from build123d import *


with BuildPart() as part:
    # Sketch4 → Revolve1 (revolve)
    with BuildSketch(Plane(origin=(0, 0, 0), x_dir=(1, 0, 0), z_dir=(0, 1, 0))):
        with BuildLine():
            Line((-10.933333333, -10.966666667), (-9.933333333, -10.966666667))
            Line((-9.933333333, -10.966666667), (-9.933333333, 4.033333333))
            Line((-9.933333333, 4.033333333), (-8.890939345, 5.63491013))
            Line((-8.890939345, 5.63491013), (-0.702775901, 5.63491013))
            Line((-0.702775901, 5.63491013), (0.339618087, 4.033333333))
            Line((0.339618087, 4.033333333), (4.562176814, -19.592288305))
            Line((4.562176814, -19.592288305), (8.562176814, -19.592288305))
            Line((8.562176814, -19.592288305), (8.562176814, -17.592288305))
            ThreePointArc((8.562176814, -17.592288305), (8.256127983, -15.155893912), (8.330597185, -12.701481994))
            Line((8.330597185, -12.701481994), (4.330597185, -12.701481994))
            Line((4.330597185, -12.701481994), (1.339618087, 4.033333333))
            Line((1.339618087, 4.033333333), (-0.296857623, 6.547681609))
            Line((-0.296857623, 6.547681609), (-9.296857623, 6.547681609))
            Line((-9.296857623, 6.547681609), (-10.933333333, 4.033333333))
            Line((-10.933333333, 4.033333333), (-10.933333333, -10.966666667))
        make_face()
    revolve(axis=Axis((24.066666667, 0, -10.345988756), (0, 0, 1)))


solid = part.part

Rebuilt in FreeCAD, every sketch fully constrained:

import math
import FreeCAD as App
import Part
import Sketcher
from FreeCAD import Vector

doc = App.newDocument("Part")
body = doc.addObject("PartDesign::Body", "Body")

# Sketch on XZ plane
sketch1 = body.newObject("Sketcher::SketchObject", "Sketch")
sketch1.AttachmentSupport = (doc.getObject("XZ_Plane"), [""])
sketch1.MapMode = "FlatFace"
sketch1.addGeometry(Part.LineSegment(Vector(-10.933333, 10.966667, 0), Vector(-9.933333, 10.966667, 0)), False)
sketch1.addGeometry(Part.LineSegment(Vector(-9.933333, 10.966667, 0), Vector(-9.933333, -4.033333, 0)), False)
sketch1.addGeometry(Part.LineSegment(Vector(-9.933333, -4.033333, 0), Vector(-8.890939, -5.63491, 0)), False)
sketch1.addGeometry(Part.LineSegment(Vector(-8.890939, -5.63491, 0), Vector(-0.702776, -5.63491, 0)), False)
sketch1.addGeometry(Part.LineSegment(Vector(-0.702776, -5.63491, 0), Vector(0.339618, -4.033333, 0)), False)
sketch1.addGeometry(Part.LineSegment(Vector(0.339618, -4.033333, 0), Vector(4.562177, 19.592288, 0)), False)
sketch1.addGeometry(Part.LineSegment(Vector(4.562177, 19.592288, 0), Vector(8.562177, 19.592288, 0)), False)
sketch1.addGeometry(Part.LineSegment(Vector(8.562177, 19.592288, 0), Vector(8.562177, 17.592288, 0)), False)
sketch1.addGeometry(Part.ArcOfCircle(Part.Circle(Vector(24.066667, 14.407265, 0), Vector(0, 0, 1), 15.828253), math.radians(168.39146), math.radians(186.186681)), False)
sketch1.addGeometry(Part.LineSegment(Vector(8.330597, 12.701482, 0), Vector(4.330597, 12.701482, 0)), False)
sketch1.addGeometry(Part.LineSegment(Vector(4.330597, 12.701482, 0), Vector(1.339618, -4.033333, 0)), False)
sketch1.addGeometry(Part.LineSegment(Vector(1.339618, -4.033333, 0), Vector(-0.296858, -6.547682, 0)), False)
sketch1.addGeometry(Part.LineSegment(Vector(-0.296858, -6.547682, 0), Vector(-9.296858, -6.547682, 0)), False)
sketch1.addGeometry(Part.LineSegment(Vector(-9.296858, -6.547682, 0), Vector(-10.933333, -4.033333, 0)), False)
sketch1.addGeometry(Part.LineSegment(Vector(-10.933333, -4.033333, 0), Vector(-10.933333, 10.966667, 0)), False)
sketch1.addGeometry(Part.LineSegment(Vector(24.066667, -6.547682, 0), Vector(24.066667, 19.592288, 0)), True)  # axis
sketch1.addConstraint(Sketcher.Constraint("Coincident", 0, 2, 1, 1))
sketch1.addConstraint(Sketcher.Constraint("Coincident", 1, 2, 2, 1))
sketch1.addConstraint(Sketcher.Constraint("Coincident", 2, 2, 3, 1))
sketch1.addConstraint(Sketcher.Constraint("Coincident", 3, 2, 4, 1))
sketch1.addConstraint(Sketcher.Constraint("Coincident", 4, 2, 5, 1))
sketch1.addConstraint(Sketcher.Constraint("Coincident", 5, 2, 6, 1))
sketch1.addConstraint(Sketcher.Constraint("Coincident", 6, 2, 7, 1))
sketch1.addConstraint(Sketcher.Constraint("Coincident", 7, 2, 8, 1))
sketch1.addConstraint(Sketcher.Constraint("Coincident", 8, 2, 9, 1))
sketch1.addConstraint(Sketcher.Constraint("Coincident", 9, 2, 10, 1))
sketch1.addConstraint(Sketcher.Constraint("Coincident", 10, 2, 11, 1))
sketch1.addConstraint(Sketcher.Constraint("Coincident", 11, 2, 12, 1))
sketch1.addConstraint(Sketcher.Constraint("Coincident", 12, 2, 13, 1))
sketch1.addConstraint(Sketcher.Constraint("Coincident", 13, 2, 14, 1))
sketch1.addConstraint(Sketcher.Constraint("Coincident", 14, 2, 0, 1))
sketch1.addConstraint(Sketcher.Constraint("Horizontal", 0))
sketch1.addConstraint(Sketcher.Constraint("Vertical", 1))
sketch1.addConstraint(Sketcher.Constraint("Horizontal", 3))
sketch1.addConstraint(Sketcher.Constraint("Horizontal", 6))
sketch1.addConstraint(Sketcher.Constraint("Vertical", 7))
sketch1.addConstraint(Sketcher.Constraint("Horizontal", 9))
sketch1.addConstraint(Sketcher.Constraint("Horizontal", 12))
sketch1.addConstraint(Sketcher.Constraint("Vertical", 14))
sketch1.addConstraint(Sketcher.Constraint("Vertical", 15))
sketch1.addConstraint(Sketcher.Constraint("Parallel", 5, 10))
sketch1.addConstraint(Sketcher.Constraint("Parallel", 4, 11))
sketch1.addConstraint(Sketcher.Constraint("Parallel", 2, 13))
sketch1.addConstraint(Sketcher.Constraint("Horizontal", 1, 2, 4, 2))
sketch1.addConstraint(Sketcher.Constraint("Horizontal", 4, 2, 10, 2))
sketch1.addConstraint(Sketcher.Constraint("Horizontal", 10, 2, 13, 2))
sketch1.addConstraint(Sketcher.Constraint("Horizontal", 12, 2, 15, 1))
sketch1.addConstraint(Sketcher.Constraint("Horizontal", 6, 2, 15, 2))
sketch1.addConstraint(Sketcher.Constraint("Vertical", 8, 3, 15, 1))
sketch1.addConstraint(Sketcher.Constraint("Equal", 6, 9))
sketch1.addConstraint(Sketcher.Constraint("Equal", 2, 4))
sketch1.addConstraint(Sketcher.Constraint("DistanceX", 0, 1, 0, 2, 1.0))
sketch1.addConstraint(Sketcher.Constraint("DistanceX", 6, 1, 6, 2, 4.0))
sketch1.addConstraint(Sketcher.Constraint("DistanceX", 12, 2, 12, 1, 9.0))
sketch1.addConstraint(Sketcher.Constraint("DistanceY", 1, 2, 1, 1, 15.0))
sketch1.addConstraint(Sketcher.Constraint("DistanceY", 7, 2, 7, 1, 2.0))
sketch1.addConstraint(Sketcher.Constraint("Distance", 5, 24.0))
sketch1.addConstraint(Sketcher.Constraint("Distance", 10, 17.0))
sketch1.addConstraint(Sketcher.Constraint("Distance", 11, 3.0))
sketch1.addConstraint(Sketcher.Constraint("DistanceX", 0, 2, 8, 3, 34.0))
sketch1.addConstraint(Sketcher.Constraint("DistanceX", 4, 2, 10, 2, 1.0))
sketch1.addConstraint(Sketcher.Constraint("Radius", 8, 15.828253))
sketch1.addConstraint(Sketcher.Constraint("DistanceY", 15, 1, 15, 2, 26.13997))
sketch1.addConstraint(Sketcher.Constraint("DistanceY", 3, 2, 5, 2, 25.227198))
sketch1.addConstraint(Sketcher.Constraint("DistanceX", 2, 2, -1, 1, 8.890939))
sketch1.addConstraint(Sketcher.Constraint("DistanceY", 2, 2, -1, 1, 5.63491))
revolution = body.newObject("PartDesign::Revolution", "Revolution")
revolution.Profile = sketch1
revolution.ReferenceAxis = (sketch1, ["Axis0"])
revolution.Angle = 360

doc.recompute()
